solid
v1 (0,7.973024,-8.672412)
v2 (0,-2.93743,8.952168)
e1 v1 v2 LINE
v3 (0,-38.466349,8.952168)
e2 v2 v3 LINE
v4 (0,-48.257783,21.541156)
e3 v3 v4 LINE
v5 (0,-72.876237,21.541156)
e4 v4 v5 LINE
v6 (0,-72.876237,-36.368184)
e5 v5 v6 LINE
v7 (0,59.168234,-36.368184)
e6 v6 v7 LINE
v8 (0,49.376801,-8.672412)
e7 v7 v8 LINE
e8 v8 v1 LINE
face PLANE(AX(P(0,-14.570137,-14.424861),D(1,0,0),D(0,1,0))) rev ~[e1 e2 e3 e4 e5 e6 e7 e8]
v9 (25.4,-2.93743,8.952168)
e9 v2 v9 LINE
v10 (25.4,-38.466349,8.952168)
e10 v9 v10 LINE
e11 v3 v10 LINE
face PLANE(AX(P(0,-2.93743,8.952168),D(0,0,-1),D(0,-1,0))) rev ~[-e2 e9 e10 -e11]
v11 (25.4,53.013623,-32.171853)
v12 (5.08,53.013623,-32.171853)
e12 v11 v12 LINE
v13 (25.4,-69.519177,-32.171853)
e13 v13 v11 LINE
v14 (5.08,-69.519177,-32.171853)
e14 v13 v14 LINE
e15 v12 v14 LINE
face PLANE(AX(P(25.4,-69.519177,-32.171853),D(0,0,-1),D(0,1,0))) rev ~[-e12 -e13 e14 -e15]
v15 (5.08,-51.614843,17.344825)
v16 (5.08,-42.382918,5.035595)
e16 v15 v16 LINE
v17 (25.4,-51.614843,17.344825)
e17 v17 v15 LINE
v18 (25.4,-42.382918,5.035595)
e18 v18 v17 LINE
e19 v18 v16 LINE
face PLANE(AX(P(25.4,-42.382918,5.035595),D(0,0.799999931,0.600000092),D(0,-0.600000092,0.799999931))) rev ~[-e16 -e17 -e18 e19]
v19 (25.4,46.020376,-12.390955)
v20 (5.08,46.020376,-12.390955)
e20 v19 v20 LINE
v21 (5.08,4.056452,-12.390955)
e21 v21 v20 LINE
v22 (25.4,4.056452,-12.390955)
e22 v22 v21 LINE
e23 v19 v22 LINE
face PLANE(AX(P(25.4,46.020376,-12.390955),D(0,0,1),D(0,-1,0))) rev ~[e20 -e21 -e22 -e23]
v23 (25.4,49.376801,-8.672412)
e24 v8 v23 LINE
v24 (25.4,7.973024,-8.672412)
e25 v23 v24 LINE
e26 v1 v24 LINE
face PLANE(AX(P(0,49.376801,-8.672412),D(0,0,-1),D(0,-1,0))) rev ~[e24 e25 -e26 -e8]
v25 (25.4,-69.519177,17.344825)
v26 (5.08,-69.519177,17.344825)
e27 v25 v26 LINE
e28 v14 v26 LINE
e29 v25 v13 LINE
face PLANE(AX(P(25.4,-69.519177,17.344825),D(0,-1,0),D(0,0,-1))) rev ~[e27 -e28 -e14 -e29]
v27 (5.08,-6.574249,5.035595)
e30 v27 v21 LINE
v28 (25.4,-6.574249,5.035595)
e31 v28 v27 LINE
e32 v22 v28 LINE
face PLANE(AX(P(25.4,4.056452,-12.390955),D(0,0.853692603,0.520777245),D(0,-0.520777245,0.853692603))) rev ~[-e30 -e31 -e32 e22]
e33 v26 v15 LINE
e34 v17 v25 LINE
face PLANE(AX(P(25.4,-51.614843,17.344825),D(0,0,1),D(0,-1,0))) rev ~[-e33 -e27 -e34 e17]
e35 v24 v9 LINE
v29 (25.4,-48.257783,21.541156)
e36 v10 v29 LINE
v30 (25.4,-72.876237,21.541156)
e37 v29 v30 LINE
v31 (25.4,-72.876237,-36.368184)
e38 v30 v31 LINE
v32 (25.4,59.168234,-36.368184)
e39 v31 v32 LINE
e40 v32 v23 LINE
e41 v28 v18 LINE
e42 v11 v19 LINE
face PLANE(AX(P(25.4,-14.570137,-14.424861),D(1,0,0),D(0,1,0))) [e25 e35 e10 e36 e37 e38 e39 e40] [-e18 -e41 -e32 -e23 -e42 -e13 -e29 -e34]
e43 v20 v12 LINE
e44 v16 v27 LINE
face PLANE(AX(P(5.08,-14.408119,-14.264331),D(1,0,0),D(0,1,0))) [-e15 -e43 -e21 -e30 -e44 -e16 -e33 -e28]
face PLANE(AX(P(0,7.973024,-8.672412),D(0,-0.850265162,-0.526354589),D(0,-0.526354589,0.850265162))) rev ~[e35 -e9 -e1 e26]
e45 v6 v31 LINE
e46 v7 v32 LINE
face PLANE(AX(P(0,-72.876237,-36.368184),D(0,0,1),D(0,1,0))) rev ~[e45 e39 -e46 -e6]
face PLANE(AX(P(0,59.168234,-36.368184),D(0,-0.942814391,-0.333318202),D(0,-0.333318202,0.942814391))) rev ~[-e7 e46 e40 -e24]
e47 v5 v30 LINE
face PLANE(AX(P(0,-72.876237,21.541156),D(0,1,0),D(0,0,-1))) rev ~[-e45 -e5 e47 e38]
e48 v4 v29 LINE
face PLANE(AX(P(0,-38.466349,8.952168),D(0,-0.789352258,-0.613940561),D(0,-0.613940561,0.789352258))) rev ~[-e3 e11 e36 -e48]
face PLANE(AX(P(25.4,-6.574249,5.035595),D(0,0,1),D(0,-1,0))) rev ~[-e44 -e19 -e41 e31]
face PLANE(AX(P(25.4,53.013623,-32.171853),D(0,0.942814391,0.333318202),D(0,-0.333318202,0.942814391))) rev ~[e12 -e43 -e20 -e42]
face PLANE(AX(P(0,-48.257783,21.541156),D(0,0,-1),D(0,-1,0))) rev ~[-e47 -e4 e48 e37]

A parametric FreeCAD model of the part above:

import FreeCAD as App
import Part
import Sketcher
from FreeCAD import Vector
Q = App.Units.Quantity


def add_polygon(sketch, points):
    """Adds a closed chain of lines whose ends are joined by coincident constraints."""
    first, n = sketch.GeometryCount, len(points)
    for a, b in zip(points, points[1:] + points[:1]):
        sketch.addGeometry(Part.LineSegment(App.Vector(*a, 0), App.Vector(*b, 0)), False)
    for i in range(n):
        sketch.addConstraint(Sketcher.Constraint("Coincident", first + i, 2, first + (i + 1) % n, 1))

doc = App.newDocument("Part")
body = doc.addObject("PartDesign::Body", "Body")

# Sketch on YZ plane
sketch1 = doc.addObject("Sketcher::SketchObject", "Sketch")
body.addObject(sketch1)
sketch1.AttachmentSupport = (doc.YZ_Plane, [""])
sketch1.MapMode = "FlatFace"
add_polygon(sketch1, [(59, -36), (49, -9), (8, -9), (-3, 9), (-38, 9), (-48, 22), (-73, 22), (-73, -36)])  # lines 0-7
sketch1.addConstraint(Sketcher.Constraint("Horizontal", 1))
sketch1.addConstraint(Sketcher.Constraint("Horizontal", 3))
sketch1.addConstraint(Sketcher.Constraint("Horizontal", 5))
sketch1.addConstraint(Sketcher.Constraint("Vertical", 6))
sketch1.addConstraint(Sketcher.Constraint("Horizontal", 7))
sketch1.addConstraint(Sketcher.Constraint("DistanceX", 3, 2, 3, 1, 35.528919))
sketch1.addConstraint(Sketcher.Constraint("DistanceX", 7, 1, 7, 2, 132.044472))
sketch1.addConstraint(Sketcher.Constraint("DistanceY", 6, 2, 6, 1, 57.90934))
sketch1.addConstraint(Sketcher.Constraint("DistanceX", -1, 1, 0, 2, 49.376801))
sketch1.addConstraint(Sketcher.Constraint("DistanceX", 1, 2, 1, 1, 41.403777))
sketch1.addConstraint(Sketcher.Constraint("DistanceX", 5, 2, 5, 1, 24.618454))
sketch1.addConstraint(Sketcher.Constraint("DistanceX", 2, 2, -1, 1, 2.93743))
sketch1.addConstraint(Sketcher.Constraint("DistanceY", 1, 2, 2, 2, 17.62458))
sketch1.addConstraint(Sketcher.Constraint("DistanceY", 3, 2, 4, 2, 12.588988))
sketch1.addConstraint(Sketcher.Constraint("DistanceX", 5, 2, 3, 2, 34.409888))
sketch1.addConstraint(Sketcher.Constraint("DistanceY", 0, 2, -1, 1, 8.672412))
pad1 = doc.addObject("PartDesign::Pad", "Pad")
body.addObject(pad1)
pad1.Profile = sketch1
pad1.Length = Q("1 in")

# Sketch on YZ plane
sketch2 = doc.addObject("Sketcher::SketchObject", "Sketch001")
body.addObject(sketch2)
sketch2.AttachmentSupport = (doc.YZ_Plane, [""])
sketch2.MapMode = "FlatFace"
add_polygon(sketch2, [(-51, 18), (-68, 17), (-68, -32), (52, -32), (45, -13), (5, -13), (-6, 5), (-42, 5)])  # lines 0-7
sketch2.addConstraint(Sketcher.Constraint("Vertical", 1))
sketch2.addConstraint(Sketcher.Constraint("Horizontal", 2))
sketch2.addConstraint(Sketcher.Constraint("Horizontal", 4))
sketch2.addConstraint(Sketcher.Constraint("Horizontal", 6))
sketch2.addConstraint(Sketcher.Constraint("DistanceX", 2, 1, 2, 2, 119.17574))
sketch2.addConstraint(Sketcher.Constraint("DistanceX", 6, 2, 6, 1, 35.808671))
sketch2.addConstraint(Sketcher.Constraint("DistanceY", 1, 2, -1, 1, 31.892098))
sketch2.addConstraint(Sketcher.Constraint("Distance", 0, 16.228219))
sketch2.addConstraint(Sketcher.Constraint("Distance", 3, 19.55287))
sketch2.addConstraint(Sketcher.Constraint("DistanceX", 4, 2, 4, 1, 39.725245))
sketch2.addConstraint(Sketcher.Constraint("DistanceY", 1, 2, 1, 1, 49.236923))
sketch2.addConstraint(Sketcher.Constraint("DistanceX", -1, 1, 4, 2, 5.455228))
sketch2.addConstraint(Sketcher.Constraint("DistanceX", 7, 2, -1, 1, 51.335089))
sketch2.addConstraint(Sketcher.Constraint("DistanceY", -1, 1, 7, 2, 17.624581))
sketch2.addConstraint(Sketcher.Constraint("DistanceX", 5, 2, 4, 2, 11.749721))
sketch2.addConstraint(Sketcher.Constraint("DistanceY", 5, 2, 0, 2, 12.30923))
pocket1 = doc.addObject("PartDesign::Pocket", "Pocket")
body.addObject(pocket1)
pocket1.Profile = sketch2
pocket1.Length = Q("1 in")

# Sketch on YZ plane
sketch3 = doc.addObject("Sketcher::SketchObject", "Sketch002")
body.addObject(sketch3)
sketch3.AttachmentSupport = (doc.YZ_Plane, [""])
sketch3.MapMode = "FlatFace"
sketch3.AttachmentOffset = App.Placement(Vector(0, 0, 1 * 25.4), App.Rotation())
add_polygon(sketch3, [(-52, 17), (-70, 17), (-70, -32), (53, -32), (46, -12), (4, -12), (-7, 5), (-42, 5)])  # lines 0-7
sketch3.addConstraint(Sketcher.Constraint("Horizontal", 0))
sketch3.addConstraint(Sketcher.Constraint("Vertical", 1))
sketch3.addConstraint(Sketcher.Constraint("Horizontal", 2))
sketch3.addConstraint(Sketcher.Constraint("Horizontal", 4))
sketch3.addConstraint(Sketcher.Constraint("Horizontal", 6))
sketch3.addConstraint(Sketcher.Constraint("DistanceX", 2, 1, 2, 2, 122.5328))
sketch3.addConstraint(Sketcher.Constraint("DistanceY", 3, 2, 0, 2, Q("1.1707 in")))
sketch3.addConstraint(Sketcher.Constraint("DistanceX", 6, 2, 6, 1, 35.808669))
sketch3.addConstraint(Sketcher.Constraint("DistanceX", 5, 2, 4, 2, 10.630701))
sketch3.addConstraint(Sketcher.Constraint("Distance", 3, 20.980691))
sketch3.addConstraint(Sketcher.Constraint("Distance", 7, 15.386539))
sketch3.addConstraint(Sketcher.Constraint("DistanceX", 0, 2, 0, 1, 17.904334))
sketch3.addConstraint(Sketcher.Constraint("DistanceX", 4, 2, 4, 1, 41.963925))
sketch3.addConstraint(Sketcher.Constraint("DistanceY", 1, 2, 1, 1, 49.516678))
sketch3.addConstraint(Sketcher.Constraint("DistanceX", -1, 1, 4, 2, 4.056452))
sketch3.addConstraint(Sketcher.Constraint("DistanceY", -1, 1, 0, 2, 17.344825))
pocket2 = doc.addObject("PartDesign::Pocket", "Pocket001")
body.addObject(pocket2)
pocket2.Profile = sketch3
pocket2.Length = Q("1 in")

# Sketch on YZ plane
sketch4 = doc.addObject("Sketcher::SketchObject", "Sketch003")
body.addObject(sketch4)
sketch4.AttachmentSupport = (doc.YZ_Plane, [""])
sketch4.MapMode = "FlatFace"
add_polygon(sketch4, [(53, -32), (46, -13), (4, -13), (-6, 4), (-42, 4), (-51, 17), (-69, 17), (-68, -32)])  # lines 0-7
sketch4.addConstraint(Sketcher.Constraint("Horizontal", 3))
sketch4.addConstraint(Sketcher.Constraint("Horizontal", 5))
sketch4.addConstraint(Sketcher.Constraint("Horizontal", 7))
sketch4.addConstraint(Sketcher.Constraint("DistanceX", 3, 2, 3, 1, 36.08843))
sketch4.addConstraint(Sketcher.Constraint("DistanceX", 5, 2, 5, 1, 17.624579))
sketch4.addConstraint(Sketcher.Constraint("DistanceX", 7, 1, 7, 2, 121.413779))
sketch4.addConstraint(Sketcher.Constraint("DistanceY", 1, 2, 4, 2, 29.374301))
sketch4.addConstraint(Sketcher.Constraint("DistanceX", 5, 2, 3, 2, 26.856501))
sketch4.addConstraint(Sketcher.Constraint("Distance", 0, 20.366491))
sketch4.addConstraint(Sketcher.Constraint("Distance", 1, 41.404721))
sketch4.addConstraint(Sketcher.Constraint("DistanceY", 1, 2, -1, 1, 12.868741))
sketch4.addConstraint(Sketcher.Constraint("DistanceY", -1, 1, 2, 2, 4.196329))
sketch4.addConstraint(Sketcher.Constraint("DistanceX", 4, 2, -1, 1, 51.335089))
sketch4.addConstraint(Sketcher.Constraint("DistanceX", 6, 2, -1, 1, 68.400159))
sketch4.addConstraint(Sketcher.Constraint("DistanceX", 2, 2, 0, 2, 51.75472))
sketch4.addConstraint(Sketcher.Constraint("Distance", 6, 48.121157))
pad2 = doc.addObject("PartDesign::Pad", "Pad001")
body.addObject(pad2)
pad2.Profile = sketch4
pad2.Length = Q("0.2 in")

# Sketch on YZ plane
sketch5 = doc.addObject("Sketcher::SketchObject", "Sketch004")
body.addObject(sketch5)
sketch5.AttachmentSupport = (doc.YZ_Plane, [""])
sketch5.MapMode = "FlatFace"
add_polygon(sketch5, [(5, -12), (-7, 5), (-42, 5), (-51, 17), (-70, 17), (-70, -32), (53, -32), (47, -12)])  # lines 0-7
sketch5.addConstraint(Sketcher.Constraint("Horizontal", 1))
sketch5.addConstraint(Sketcher.Constraint("Horizontal", 3))
sketch5.addConstraint(Sketcher.Constraint("Vertical", 4))
sketch5.addConstraint(Sketcher.Constraint("Horizontal", 5))
sketch5.addConstraint(Sketcher.Constraint("Horizontal", 7))
sketch5.addConstraint(Sketcher.Constraint("DistanceX", 5, 1, 5, 2, 122.812551))
sketch5.addConstraint(Sketcher.Constraint("Distance", 6, 21.329388))
sketch5.addConstraint(Sketcher.Constraint("DistanceX", 1, 2, 1, 1, 34.689654))
sketch5.addConstraint(Sketcher.Constraint("DistanceX", 3, 2, 3, 1, 19.023355))
sketch5.addConstraint(Sketcher.Constraint("DistanceX", 7, 2, 7, 1, 41.403776))
sketch5.addConstraint(Sketcher.Constraint("DistanceY", 4, 2, 4, 1, 49.236923))
sketch5.addConstraint(Sketcher.Constraint("DistanceY", -1, 1, 0, 2, 4.755839))
sketch5.addConstraint(Sketcher.Constraint("DistanceY", -1, 1, 2, 2, 17.065071))
sketch5.addConstraint(Sketcher.Constraint("DistanceX", 3, 2, -1, 1, 69.798931))
sketch5.addConstraint(Sketcher.Constraint("DistanceY", 6, 2, -1, 1, 11.74972))
sketch5.addConstraint(Sketcher.Constraint("DistanceX", 2, 2, 1, 2, 8.672409))
pad3 = doc.addObject("PartDesign::Pad", "Pad002")
body.addObject(pad3)
pad3.Profile = sketch5
pad3.Length = Q("0.2 in")

# Sketch on YZ plane
sketch6 = doc.addObject("Sketcher::SketchObject", "Sketch005")
body.addObject(sketch6)
sketch6.AttachmentSupport = (doc.YZ_Plane, [""])
sketch6.MapMode = "FlatFace"
add_polygon(sketch6, [(56.3, -33.5), (49.1, -13.1), (49.1, -10.7), (7.4, -10.7), (-4.5, 6.5), (-40.6, 6.5), (-49.6, 18.9), (-70.4, 18.9), (-70.4, -33.5)])  # lines 0-8
sketch6.addConstraint(Sketcher.Constraint("Vertical", 1))
sketch6.addConstraint(Sketcher.Constraint("Horizontal", 2))
sketch6.addConstraint(Sketcher.Constraint("Horizontal", 4))
sketch6.addConstraint(Sketcher.Constraint("Horizontal", 6))
sketch6.addConstraint(Sketcher.Constraint("Vertical", 7))
sketch6.addConstraint(Sketcher.Constraint("Horizontal", 8))
sketch6.addConstraint(Sketcher.Constraint("DistanceX", 2, 2, 2, 1, 41.710129))
sketch6.addConstraint(Sketcher.Constraint("DistanceX", 8, 1, 8, 2, 126.731921))
sketch6.addConstraint(Sketcher.Constraint("DistanceY", 1, 1, 1, 2, 2.426291))
sketch6.addConstraint(Sketcher.Constraint("DistanceY", 7, 2, 7, 1, 52.305272))
sketch6.addConstraint(Sketcher.Constraint("DistanceX", 2, 2, 8, 2, 48.885798))
sketch6.addConstraint(Sketcher.Constraint("Distance", 5, 15.289519))
sketch6.addConstraint(Sketcher.Constraint("DistanceX", 4, 2, 4, 1, 36.102363))
sketch6.addConstraint(Sketcher.Constraint("DistanceX", 6, 2, 6, 1, 20.797357))
sketch6.addConstraint(Sketcher.Constraint("DistanceY", 0, 2, -1, 1, 13.095082))
sketch6.addConstraint(Sketcher.Constraint("DistanceX", 3, 2, -1, 1, 4.491108))
sketch6.addConstraint(Sketcher.Constraint("DistanceX", 5, 2, -1, 1, 49.645461))
sketch6.addConstraint(Sketcher.Constraint("DistanceY", -1, 1, 5, 2, 18.851122))
pad4 = doc.addObject("PartDesign::Pad", "Pad003")
body.addObject(pad4)
pad4.Profile = sketch6
pad4.Length = Q("0.2 in")

doc.recompute()
